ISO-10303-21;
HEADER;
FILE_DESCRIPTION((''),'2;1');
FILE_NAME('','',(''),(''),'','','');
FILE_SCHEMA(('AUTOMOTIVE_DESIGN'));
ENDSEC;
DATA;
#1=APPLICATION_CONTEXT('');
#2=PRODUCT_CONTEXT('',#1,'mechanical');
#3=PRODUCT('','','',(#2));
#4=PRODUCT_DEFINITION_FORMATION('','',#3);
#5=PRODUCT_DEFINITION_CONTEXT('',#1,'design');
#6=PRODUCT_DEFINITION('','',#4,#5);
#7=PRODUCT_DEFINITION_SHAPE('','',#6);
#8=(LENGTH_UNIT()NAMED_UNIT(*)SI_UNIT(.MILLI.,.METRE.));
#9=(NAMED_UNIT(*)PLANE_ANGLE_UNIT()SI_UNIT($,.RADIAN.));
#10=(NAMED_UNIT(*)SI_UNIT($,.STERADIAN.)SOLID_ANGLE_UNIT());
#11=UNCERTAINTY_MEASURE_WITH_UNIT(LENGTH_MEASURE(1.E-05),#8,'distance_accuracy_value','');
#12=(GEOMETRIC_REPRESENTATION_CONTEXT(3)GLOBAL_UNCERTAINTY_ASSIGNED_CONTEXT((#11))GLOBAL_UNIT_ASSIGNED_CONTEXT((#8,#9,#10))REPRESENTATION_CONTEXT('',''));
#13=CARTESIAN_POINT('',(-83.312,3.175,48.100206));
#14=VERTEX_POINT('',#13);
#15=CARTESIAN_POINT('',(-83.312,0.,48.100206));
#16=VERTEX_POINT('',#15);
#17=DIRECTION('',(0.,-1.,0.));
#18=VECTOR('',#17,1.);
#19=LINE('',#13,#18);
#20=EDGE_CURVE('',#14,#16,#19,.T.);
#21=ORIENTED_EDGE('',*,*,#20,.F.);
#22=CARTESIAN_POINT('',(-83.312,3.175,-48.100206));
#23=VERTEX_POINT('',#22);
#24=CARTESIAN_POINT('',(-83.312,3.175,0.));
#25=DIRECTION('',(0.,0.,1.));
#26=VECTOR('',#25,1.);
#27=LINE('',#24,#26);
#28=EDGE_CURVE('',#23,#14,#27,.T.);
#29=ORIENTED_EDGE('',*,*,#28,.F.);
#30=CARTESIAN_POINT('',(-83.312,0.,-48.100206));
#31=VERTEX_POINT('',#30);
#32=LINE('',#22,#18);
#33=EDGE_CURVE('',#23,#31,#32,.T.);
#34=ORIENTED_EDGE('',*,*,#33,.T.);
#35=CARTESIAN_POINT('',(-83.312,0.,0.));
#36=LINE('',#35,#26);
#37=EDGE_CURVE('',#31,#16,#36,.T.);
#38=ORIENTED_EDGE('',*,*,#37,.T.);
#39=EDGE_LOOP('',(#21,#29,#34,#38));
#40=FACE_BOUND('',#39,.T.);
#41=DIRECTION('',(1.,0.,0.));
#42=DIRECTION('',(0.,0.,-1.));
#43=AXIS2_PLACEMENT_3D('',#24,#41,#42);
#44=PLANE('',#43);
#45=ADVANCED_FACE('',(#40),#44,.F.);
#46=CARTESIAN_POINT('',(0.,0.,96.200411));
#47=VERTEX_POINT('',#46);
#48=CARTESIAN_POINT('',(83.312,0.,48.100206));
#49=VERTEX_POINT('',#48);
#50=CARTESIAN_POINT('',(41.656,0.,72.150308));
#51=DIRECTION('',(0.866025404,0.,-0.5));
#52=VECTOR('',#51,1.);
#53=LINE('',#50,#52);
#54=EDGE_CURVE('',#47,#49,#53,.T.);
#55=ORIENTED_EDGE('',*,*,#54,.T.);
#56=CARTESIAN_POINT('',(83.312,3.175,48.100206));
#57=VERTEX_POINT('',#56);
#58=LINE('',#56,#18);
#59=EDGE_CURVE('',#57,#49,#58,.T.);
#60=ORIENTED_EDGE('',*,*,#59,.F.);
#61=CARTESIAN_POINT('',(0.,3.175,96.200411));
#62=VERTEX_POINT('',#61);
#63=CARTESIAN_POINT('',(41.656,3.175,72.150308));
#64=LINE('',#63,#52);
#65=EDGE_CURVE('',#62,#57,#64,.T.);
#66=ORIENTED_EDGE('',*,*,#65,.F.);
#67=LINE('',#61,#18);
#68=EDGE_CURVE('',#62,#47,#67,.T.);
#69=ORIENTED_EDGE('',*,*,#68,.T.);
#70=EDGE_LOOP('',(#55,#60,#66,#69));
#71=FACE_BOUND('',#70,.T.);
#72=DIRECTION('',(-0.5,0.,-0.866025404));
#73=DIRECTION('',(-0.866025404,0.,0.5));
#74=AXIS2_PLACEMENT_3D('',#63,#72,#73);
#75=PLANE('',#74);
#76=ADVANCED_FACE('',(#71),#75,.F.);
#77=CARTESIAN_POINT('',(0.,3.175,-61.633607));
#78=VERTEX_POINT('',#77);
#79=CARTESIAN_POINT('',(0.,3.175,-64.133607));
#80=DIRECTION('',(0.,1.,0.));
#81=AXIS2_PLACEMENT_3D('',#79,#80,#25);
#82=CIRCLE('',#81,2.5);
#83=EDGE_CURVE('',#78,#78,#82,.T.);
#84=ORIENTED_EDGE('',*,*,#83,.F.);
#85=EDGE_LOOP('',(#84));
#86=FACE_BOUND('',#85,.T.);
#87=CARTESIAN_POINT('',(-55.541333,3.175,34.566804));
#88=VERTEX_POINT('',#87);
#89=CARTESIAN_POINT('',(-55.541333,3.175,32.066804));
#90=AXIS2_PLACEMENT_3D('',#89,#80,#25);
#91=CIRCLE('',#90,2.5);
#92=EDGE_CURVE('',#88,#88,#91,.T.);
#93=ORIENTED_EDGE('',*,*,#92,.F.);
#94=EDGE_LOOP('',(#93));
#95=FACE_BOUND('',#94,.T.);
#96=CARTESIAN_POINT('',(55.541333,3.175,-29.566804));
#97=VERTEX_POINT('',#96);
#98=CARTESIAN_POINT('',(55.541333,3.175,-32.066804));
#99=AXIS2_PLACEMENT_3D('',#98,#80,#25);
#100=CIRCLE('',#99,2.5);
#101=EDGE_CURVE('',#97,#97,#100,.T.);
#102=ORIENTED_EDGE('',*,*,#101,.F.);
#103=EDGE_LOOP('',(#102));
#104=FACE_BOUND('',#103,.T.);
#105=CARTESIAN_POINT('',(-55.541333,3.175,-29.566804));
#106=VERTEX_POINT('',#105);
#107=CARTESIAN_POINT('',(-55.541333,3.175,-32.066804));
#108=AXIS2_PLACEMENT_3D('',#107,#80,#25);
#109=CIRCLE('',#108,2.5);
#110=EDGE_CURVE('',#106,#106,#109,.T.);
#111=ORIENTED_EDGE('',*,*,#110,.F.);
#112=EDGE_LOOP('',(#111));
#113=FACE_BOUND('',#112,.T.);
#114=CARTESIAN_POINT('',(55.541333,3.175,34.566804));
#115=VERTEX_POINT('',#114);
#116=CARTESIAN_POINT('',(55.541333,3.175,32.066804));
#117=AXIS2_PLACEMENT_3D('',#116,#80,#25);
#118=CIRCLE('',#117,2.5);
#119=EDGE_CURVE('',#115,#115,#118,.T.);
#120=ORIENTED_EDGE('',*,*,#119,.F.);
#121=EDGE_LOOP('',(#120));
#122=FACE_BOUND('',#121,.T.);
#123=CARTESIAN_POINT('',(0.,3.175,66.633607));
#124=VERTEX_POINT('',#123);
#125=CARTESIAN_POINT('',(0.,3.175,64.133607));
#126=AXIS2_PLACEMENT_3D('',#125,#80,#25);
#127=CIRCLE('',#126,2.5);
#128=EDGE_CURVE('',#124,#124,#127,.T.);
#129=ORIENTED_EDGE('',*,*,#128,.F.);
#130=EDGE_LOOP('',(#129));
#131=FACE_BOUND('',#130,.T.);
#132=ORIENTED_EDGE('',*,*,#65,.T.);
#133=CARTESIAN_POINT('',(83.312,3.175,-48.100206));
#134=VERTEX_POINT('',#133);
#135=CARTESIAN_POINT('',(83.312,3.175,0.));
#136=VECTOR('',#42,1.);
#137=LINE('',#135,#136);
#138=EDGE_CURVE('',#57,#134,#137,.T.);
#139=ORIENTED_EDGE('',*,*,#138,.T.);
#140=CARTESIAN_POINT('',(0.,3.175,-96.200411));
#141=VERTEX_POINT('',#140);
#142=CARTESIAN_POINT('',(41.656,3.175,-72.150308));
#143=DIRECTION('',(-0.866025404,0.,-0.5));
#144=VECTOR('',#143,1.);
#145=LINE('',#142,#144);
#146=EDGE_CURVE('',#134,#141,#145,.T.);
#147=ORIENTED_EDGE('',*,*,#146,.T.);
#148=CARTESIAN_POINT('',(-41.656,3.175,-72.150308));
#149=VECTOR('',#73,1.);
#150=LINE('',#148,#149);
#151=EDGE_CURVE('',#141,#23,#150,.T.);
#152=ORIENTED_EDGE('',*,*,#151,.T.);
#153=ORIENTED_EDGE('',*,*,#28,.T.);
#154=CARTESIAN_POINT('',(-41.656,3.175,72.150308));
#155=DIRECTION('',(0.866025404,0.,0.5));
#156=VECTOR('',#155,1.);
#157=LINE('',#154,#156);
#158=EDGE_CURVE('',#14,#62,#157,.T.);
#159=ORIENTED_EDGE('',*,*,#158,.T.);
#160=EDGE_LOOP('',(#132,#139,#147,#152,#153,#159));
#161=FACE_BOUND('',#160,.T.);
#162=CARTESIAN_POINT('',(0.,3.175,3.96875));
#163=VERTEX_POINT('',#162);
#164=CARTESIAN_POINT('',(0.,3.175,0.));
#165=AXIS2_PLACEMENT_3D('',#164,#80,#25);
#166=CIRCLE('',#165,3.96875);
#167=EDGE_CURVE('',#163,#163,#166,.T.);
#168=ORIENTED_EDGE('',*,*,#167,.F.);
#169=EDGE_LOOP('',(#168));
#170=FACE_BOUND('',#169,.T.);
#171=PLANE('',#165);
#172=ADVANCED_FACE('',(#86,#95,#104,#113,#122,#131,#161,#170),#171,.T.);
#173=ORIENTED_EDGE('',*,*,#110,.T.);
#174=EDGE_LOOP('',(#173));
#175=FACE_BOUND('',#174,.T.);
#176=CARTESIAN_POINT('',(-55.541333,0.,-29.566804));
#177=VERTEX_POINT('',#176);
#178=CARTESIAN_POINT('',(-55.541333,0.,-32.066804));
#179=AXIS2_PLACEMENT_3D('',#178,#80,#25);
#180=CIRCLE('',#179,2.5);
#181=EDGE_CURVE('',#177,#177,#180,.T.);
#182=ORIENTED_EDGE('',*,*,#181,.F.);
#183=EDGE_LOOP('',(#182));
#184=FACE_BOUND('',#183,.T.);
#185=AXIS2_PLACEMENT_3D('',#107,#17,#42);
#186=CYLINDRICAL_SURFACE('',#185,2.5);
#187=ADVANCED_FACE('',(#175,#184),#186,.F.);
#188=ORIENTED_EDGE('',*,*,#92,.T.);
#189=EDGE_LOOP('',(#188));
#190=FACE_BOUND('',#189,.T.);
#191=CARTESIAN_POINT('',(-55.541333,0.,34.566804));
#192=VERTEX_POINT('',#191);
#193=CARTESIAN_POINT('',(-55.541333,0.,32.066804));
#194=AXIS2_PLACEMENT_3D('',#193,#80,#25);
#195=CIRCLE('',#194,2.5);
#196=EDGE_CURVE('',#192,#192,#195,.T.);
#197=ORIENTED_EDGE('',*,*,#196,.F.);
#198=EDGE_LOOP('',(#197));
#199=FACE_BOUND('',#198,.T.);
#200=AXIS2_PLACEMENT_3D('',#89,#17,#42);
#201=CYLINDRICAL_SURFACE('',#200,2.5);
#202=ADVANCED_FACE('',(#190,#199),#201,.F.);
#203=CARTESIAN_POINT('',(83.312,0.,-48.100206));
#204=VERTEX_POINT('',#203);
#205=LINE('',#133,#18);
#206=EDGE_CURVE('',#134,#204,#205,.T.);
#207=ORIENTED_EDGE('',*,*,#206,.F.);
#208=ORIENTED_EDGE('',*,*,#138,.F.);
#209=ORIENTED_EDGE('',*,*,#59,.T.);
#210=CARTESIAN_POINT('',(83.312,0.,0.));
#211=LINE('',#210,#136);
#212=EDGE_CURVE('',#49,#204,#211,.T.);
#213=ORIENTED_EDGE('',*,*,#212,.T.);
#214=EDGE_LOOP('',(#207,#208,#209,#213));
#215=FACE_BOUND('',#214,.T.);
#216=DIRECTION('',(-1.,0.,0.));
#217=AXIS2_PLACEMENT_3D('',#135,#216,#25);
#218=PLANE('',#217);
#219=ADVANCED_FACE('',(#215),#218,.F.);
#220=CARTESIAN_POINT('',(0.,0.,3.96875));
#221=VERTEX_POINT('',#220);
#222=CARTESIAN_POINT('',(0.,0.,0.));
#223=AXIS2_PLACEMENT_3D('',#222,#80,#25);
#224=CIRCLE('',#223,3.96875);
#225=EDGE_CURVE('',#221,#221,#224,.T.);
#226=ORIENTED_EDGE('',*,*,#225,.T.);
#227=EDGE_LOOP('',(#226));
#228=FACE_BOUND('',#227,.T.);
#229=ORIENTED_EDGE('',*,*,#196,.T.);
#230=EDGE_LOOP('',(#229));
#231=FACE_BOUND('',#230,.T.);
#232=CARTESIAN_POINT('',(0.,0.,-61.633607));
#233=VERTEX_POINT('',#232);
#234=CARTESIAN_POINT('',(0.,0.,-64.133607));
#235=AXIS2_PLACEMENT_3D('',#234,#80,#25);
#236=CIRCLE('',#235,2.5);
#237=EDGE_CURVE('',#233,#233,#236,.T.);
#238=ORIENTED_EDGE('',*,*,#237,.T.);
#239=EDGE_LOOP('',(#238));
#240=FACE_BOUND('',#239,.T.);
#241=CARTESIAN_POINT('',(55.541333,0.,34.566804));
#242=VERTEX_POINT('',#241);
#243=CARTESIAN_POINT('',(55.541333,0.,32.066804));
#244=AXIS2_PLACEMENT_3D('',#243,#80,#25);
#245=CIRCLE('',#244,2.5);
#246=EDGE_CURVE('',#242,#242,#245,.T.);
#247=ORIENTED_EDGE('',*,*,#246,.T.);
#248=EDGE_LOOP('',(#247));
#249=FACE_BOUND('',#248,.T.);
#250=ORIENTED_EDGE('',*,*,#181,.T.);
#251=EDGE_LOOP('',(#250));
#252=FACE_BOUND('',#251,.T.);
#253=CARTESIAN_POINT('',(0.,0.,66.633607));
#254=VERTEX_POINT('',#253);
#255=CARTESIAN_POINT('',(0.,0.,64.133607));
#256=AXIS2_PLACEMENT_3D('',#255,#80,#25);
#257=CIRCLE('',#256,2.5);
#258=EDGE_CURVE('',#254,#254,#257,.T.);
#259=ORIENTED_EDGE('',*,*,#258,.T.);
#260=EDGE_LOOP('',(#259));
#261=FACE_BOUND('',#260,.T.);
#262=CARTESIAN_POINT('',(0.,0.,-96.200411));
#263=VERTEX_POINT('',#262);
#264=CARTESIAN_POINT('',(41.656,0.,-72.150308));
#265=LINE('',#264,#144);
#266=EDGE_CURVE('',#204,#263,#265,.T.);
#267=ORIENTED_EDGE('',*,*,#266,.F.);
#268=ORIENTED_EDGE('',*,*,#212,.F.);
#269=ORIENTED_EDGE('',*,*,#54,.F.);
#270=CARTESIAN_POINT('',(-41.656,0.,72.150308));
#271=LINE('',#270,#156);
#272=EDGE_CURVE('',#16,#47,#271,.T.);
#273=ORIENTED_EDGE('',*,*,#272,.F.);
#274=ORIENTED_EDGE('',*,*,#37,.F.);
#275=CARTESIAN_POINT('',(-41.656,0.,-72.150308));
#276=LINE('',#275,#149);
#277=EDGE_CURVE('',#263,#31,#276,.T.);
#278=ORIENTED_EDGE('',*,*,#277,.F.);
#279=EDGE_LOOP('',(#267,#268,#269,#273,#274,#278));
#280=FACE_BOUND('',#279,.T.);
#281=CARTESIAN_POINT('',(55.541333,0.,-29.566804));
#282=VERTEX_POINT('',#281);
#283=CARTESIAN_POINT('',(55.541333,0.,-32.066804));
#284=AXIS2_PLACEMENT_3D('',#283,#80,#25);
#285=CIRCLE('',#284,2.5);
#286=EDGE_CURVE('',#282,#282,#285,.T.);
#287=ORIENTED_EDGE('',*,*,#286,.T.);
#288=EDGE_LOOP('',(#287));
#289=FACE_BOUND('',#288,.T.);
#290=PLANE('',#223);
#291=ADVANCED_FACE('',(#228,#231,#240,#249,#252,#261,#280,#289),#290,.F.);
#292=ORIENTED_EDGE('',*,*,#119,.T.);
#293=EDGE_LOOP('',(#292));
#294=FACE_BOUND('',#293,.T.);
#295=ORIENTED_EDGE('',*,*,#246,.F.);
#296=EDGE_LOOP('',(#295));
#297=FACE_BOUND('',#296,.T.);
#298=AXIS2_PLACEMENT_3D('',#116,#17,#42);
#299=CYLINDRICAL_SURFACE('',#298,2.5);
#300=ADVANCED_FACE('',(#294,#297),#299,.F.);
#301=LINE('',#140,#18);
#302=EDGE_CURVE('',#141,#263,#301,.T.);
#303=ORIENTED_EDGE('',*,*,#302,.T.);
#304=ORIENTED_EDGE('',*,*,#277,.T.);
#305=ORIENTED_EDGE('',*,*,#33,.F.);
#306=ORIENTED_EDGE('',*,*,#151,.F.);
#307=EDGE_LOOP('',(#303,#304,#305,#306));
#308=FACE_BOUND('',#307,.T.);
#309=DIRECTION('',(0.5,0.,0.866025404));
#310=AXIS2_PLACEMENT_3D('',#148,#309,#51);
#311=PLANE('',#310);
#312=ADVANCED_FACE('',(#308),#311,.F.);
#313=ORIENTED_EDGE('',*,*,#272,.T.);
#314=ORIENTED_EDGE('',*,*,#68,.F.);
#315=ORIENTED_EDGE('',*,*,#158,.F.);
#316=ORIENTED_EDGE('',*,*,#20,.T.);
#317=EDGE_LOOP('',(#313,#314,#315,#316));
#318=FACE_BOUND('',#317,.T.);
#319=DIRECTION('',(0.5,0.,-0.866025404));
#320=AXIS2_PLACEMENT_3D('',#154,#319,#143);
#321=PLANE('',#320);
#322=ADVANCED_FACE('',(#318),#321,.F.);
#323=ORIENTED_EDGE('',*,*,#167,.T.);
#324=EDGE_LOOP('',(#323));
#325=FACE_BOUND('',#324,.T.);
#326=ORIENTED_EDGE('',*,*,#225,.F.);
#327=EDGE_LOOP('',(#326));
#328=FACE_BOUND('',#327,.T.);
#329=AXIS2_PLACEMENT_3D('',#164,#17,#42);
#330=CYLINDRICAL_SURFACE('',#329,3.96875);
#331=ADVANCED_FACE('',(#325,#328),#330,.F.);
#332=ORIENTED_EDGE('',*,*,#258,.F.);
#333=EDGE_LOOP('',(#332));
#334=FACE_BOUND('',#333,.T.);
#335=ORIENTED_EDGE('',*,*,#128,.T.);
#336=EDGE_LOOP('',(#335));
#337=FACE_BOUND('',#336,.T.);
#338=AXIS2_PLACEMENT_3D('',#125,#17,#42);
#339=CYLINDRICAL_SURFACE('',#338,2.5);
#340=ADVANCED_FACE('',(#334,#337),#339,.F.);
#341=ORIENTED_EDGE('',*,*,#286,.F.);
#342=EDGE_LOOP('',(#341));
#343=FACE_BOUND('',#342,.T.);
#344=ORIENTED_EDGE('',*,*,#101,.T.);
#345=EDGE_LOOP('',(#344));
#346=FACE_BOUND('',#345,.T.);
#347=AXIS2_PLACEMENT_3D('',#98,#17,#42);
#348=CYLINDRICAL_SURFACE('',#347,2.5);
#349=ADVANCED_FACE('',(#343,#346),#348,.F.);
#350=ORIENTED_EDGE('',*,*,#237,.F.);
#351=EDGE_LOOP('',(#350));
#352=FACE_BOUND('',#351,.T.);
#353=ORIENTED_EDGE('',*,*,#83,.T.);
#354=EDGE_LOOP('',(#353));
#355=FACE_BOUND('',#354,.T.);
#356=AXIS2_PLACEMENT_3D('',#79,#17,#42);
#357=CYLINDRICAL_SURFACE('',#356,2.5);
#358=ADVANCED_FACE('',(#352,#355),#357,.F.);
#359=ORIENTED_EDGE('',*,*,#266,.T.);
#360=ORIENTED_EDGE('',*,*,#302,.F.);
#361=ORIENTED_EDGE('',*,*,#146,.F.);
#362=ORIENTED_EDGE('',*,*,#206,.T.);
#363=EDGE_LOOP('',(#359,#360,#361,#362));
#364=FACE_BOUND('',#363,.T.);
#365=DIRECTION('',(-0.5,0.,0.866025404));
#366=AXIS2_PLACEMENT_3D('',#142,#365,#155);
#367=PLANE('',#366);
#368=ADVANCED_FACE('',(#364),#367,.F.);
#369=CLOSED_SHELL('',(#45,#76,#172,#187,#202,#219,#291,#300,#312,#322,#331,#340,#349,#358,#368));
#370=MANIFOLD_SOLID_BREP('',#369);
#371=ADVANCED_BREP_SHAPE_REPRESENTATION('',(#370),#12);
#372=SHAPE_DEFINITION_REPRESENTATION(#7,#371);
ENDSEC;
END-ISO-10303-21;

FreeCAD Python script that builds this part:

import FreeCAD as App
import Part
import Sketcher

V = App.Vector
Q = App.Units.Quantity


def add_polygon(sketch, points):
    """Adds a closed chain of lines whose ends are joined by coincident constraints."""
    first, n = sketch.GeometryCount, len(points)
    for a, b in zip(points, points[1:] + points[:1]):
        sketch.addGeometry(Part.LineSegment(App.Vector(*a, 0), App.Vector(*b, 0)), False)
    for i in range(n):
        sketch.addConstraint(Sketcher.Constraint("Coincident", first + i, 2, first + (i + 1) % n, 1))

doc = App.newDocument("Part")
params = doc.addObject("Spreadsheet::Sheet", "Params")
for row, (alias, value) in enumerate([
    ("sketch1_diameter", "0.3125 in"),
    ("pad1_length", "0.125 in"),
], start=1):
    params.set(f"A{row}", alias)
    params.set(f"B{row}", "=" + value)
    params.setAlias(f"B{row}", alias)

body = doc.addObject("PartDesign::Body", "Body")

# Sketch on XZ plane
sketch1 = body.newObject("Sketcher::SketchObject", "Sketch")
sketch1.AttachmentSupport = (doc.getObject("XZ_Plane"), [""])
sketch1.MapMode = "FlatFace"
add_polygon(sketch1, [(83.312, 48.100206), (83.312, -48.100206), (0, -96.200411), (-83.312, -48.100206), (-83.312, 48.100206), (0, 96.200411)])  # lines 0-5
sketch1.addGeometry(Part.Circle(V(-55.541333, 32.066804, 0), V(0, 0, 1), 2.5), False)  # 6
sketch1.addGeometry(Part.Circle(V(0, 64.133607, 0), V(0, 0, 1), 2.5), False)  # 7
sketch1.addGeometry(Part.Circle(V(55.541333, 32.066804, 0), V(0, 0, 1), 2.5), False)  # 8
sketch1.addGeometry(Part.Circle(V(-55.541333, -32.066804, 0), V(0, 0, 1), 2.5), False)  # 9
sketch1.addGeometry(Part.Circle(V(0, 0, 0), V(0, 0, 1), 3.96875), False)  # 10
sketch1.addGeometry(Part.Circle(V(55.541333, -32.066804, 0), V(0, 0, 1), 2.5), False)  # 11
sketch1.addGeometry(Part.Circle(V(0, -64.133607, 0), V(0, 0, 1), 2.5), False)  # 12
sketch1.addConstraint([
    Sketcher.Constraint("Vertical", 0),
    Sketcher.Constraint("Vertical", 3),
    Sketcher.Constraint("Coincident", 10, 3, -1, 1),
    Sketcher.Constraint("Equal", 6, 7),
    Sketcher.Constraint("Equal", 7, 8),
    Sketcher.Constraint("Equal", 8, 9),
    Sketcher.Constraint("Equal", 9, 11),
    Sketcher.Constraint("Equal", 11, 12),
    Sketcher.Constraint("Symmetric", 8, 3, 9, 3, -1, 1),
    Sketcher.Constraint("Symmetric", 6, 3, 11, 3, -1, 1),
    Sketcher.Constraint("Symmetric", 7, 3, 12, 3, -1, 1),
    Sketcher.Constraint("Symmetric", 0, 2, 3, 2, -1, 1),
    Sketcher.Constraint("Symmetric", 1, 2, 4, 2, -1, 1),
    Sketcher.Constraint("Symmetric", 6, 3, 8, 3, -2),
    Sketcher.Constraint("PointOnObject", 7, 3, -2),
    Sketcher.Constraint("PointOnObject", 1, 2, -2),
    Sketcher.Constraint("Parallel", 2, 5),
    Sketcher.Constraint("Horizontal", 0, 2, 2, 2),
    Sketcher.Constraint("Diameter", 10, Q("0.3125 in")),
    Sketcher.Constraint("Angle", 1, Q("-150 deg")),
    Sketcher.Constraint("Diameter", 6, Q("5 mm")),
    Sketcher.Constraint("DistanceX", -1, 1, 0, 2, Q("3.28 in")),
    Sketcher.Constraint("DistanceY", 0, 2, 0, 1, Q("96.200411 mm")),
    Sketcher.Constraint("DistanceY", 0, 2, 11, 3, Q("16.033402 mm")),
    Sketcher.Constraint("DistanceY", 12, 3, 0, 2, Q("16.033402 mm")),
    Sketcher.Constraint("DistanceX", 6, 3, -1, 1, Q("55.541333 mm")),
])
sketch1.setExpression("Constraints[24]", "Params.sketch1_diameter")
pad1 = body.newObject("PartDesign::Pad", "Pad")
pad1.Profile = sketch1
pad1.setExpression("Length", "Params.pad1_length")
pad1.Reversed = True

doc.recompute()
